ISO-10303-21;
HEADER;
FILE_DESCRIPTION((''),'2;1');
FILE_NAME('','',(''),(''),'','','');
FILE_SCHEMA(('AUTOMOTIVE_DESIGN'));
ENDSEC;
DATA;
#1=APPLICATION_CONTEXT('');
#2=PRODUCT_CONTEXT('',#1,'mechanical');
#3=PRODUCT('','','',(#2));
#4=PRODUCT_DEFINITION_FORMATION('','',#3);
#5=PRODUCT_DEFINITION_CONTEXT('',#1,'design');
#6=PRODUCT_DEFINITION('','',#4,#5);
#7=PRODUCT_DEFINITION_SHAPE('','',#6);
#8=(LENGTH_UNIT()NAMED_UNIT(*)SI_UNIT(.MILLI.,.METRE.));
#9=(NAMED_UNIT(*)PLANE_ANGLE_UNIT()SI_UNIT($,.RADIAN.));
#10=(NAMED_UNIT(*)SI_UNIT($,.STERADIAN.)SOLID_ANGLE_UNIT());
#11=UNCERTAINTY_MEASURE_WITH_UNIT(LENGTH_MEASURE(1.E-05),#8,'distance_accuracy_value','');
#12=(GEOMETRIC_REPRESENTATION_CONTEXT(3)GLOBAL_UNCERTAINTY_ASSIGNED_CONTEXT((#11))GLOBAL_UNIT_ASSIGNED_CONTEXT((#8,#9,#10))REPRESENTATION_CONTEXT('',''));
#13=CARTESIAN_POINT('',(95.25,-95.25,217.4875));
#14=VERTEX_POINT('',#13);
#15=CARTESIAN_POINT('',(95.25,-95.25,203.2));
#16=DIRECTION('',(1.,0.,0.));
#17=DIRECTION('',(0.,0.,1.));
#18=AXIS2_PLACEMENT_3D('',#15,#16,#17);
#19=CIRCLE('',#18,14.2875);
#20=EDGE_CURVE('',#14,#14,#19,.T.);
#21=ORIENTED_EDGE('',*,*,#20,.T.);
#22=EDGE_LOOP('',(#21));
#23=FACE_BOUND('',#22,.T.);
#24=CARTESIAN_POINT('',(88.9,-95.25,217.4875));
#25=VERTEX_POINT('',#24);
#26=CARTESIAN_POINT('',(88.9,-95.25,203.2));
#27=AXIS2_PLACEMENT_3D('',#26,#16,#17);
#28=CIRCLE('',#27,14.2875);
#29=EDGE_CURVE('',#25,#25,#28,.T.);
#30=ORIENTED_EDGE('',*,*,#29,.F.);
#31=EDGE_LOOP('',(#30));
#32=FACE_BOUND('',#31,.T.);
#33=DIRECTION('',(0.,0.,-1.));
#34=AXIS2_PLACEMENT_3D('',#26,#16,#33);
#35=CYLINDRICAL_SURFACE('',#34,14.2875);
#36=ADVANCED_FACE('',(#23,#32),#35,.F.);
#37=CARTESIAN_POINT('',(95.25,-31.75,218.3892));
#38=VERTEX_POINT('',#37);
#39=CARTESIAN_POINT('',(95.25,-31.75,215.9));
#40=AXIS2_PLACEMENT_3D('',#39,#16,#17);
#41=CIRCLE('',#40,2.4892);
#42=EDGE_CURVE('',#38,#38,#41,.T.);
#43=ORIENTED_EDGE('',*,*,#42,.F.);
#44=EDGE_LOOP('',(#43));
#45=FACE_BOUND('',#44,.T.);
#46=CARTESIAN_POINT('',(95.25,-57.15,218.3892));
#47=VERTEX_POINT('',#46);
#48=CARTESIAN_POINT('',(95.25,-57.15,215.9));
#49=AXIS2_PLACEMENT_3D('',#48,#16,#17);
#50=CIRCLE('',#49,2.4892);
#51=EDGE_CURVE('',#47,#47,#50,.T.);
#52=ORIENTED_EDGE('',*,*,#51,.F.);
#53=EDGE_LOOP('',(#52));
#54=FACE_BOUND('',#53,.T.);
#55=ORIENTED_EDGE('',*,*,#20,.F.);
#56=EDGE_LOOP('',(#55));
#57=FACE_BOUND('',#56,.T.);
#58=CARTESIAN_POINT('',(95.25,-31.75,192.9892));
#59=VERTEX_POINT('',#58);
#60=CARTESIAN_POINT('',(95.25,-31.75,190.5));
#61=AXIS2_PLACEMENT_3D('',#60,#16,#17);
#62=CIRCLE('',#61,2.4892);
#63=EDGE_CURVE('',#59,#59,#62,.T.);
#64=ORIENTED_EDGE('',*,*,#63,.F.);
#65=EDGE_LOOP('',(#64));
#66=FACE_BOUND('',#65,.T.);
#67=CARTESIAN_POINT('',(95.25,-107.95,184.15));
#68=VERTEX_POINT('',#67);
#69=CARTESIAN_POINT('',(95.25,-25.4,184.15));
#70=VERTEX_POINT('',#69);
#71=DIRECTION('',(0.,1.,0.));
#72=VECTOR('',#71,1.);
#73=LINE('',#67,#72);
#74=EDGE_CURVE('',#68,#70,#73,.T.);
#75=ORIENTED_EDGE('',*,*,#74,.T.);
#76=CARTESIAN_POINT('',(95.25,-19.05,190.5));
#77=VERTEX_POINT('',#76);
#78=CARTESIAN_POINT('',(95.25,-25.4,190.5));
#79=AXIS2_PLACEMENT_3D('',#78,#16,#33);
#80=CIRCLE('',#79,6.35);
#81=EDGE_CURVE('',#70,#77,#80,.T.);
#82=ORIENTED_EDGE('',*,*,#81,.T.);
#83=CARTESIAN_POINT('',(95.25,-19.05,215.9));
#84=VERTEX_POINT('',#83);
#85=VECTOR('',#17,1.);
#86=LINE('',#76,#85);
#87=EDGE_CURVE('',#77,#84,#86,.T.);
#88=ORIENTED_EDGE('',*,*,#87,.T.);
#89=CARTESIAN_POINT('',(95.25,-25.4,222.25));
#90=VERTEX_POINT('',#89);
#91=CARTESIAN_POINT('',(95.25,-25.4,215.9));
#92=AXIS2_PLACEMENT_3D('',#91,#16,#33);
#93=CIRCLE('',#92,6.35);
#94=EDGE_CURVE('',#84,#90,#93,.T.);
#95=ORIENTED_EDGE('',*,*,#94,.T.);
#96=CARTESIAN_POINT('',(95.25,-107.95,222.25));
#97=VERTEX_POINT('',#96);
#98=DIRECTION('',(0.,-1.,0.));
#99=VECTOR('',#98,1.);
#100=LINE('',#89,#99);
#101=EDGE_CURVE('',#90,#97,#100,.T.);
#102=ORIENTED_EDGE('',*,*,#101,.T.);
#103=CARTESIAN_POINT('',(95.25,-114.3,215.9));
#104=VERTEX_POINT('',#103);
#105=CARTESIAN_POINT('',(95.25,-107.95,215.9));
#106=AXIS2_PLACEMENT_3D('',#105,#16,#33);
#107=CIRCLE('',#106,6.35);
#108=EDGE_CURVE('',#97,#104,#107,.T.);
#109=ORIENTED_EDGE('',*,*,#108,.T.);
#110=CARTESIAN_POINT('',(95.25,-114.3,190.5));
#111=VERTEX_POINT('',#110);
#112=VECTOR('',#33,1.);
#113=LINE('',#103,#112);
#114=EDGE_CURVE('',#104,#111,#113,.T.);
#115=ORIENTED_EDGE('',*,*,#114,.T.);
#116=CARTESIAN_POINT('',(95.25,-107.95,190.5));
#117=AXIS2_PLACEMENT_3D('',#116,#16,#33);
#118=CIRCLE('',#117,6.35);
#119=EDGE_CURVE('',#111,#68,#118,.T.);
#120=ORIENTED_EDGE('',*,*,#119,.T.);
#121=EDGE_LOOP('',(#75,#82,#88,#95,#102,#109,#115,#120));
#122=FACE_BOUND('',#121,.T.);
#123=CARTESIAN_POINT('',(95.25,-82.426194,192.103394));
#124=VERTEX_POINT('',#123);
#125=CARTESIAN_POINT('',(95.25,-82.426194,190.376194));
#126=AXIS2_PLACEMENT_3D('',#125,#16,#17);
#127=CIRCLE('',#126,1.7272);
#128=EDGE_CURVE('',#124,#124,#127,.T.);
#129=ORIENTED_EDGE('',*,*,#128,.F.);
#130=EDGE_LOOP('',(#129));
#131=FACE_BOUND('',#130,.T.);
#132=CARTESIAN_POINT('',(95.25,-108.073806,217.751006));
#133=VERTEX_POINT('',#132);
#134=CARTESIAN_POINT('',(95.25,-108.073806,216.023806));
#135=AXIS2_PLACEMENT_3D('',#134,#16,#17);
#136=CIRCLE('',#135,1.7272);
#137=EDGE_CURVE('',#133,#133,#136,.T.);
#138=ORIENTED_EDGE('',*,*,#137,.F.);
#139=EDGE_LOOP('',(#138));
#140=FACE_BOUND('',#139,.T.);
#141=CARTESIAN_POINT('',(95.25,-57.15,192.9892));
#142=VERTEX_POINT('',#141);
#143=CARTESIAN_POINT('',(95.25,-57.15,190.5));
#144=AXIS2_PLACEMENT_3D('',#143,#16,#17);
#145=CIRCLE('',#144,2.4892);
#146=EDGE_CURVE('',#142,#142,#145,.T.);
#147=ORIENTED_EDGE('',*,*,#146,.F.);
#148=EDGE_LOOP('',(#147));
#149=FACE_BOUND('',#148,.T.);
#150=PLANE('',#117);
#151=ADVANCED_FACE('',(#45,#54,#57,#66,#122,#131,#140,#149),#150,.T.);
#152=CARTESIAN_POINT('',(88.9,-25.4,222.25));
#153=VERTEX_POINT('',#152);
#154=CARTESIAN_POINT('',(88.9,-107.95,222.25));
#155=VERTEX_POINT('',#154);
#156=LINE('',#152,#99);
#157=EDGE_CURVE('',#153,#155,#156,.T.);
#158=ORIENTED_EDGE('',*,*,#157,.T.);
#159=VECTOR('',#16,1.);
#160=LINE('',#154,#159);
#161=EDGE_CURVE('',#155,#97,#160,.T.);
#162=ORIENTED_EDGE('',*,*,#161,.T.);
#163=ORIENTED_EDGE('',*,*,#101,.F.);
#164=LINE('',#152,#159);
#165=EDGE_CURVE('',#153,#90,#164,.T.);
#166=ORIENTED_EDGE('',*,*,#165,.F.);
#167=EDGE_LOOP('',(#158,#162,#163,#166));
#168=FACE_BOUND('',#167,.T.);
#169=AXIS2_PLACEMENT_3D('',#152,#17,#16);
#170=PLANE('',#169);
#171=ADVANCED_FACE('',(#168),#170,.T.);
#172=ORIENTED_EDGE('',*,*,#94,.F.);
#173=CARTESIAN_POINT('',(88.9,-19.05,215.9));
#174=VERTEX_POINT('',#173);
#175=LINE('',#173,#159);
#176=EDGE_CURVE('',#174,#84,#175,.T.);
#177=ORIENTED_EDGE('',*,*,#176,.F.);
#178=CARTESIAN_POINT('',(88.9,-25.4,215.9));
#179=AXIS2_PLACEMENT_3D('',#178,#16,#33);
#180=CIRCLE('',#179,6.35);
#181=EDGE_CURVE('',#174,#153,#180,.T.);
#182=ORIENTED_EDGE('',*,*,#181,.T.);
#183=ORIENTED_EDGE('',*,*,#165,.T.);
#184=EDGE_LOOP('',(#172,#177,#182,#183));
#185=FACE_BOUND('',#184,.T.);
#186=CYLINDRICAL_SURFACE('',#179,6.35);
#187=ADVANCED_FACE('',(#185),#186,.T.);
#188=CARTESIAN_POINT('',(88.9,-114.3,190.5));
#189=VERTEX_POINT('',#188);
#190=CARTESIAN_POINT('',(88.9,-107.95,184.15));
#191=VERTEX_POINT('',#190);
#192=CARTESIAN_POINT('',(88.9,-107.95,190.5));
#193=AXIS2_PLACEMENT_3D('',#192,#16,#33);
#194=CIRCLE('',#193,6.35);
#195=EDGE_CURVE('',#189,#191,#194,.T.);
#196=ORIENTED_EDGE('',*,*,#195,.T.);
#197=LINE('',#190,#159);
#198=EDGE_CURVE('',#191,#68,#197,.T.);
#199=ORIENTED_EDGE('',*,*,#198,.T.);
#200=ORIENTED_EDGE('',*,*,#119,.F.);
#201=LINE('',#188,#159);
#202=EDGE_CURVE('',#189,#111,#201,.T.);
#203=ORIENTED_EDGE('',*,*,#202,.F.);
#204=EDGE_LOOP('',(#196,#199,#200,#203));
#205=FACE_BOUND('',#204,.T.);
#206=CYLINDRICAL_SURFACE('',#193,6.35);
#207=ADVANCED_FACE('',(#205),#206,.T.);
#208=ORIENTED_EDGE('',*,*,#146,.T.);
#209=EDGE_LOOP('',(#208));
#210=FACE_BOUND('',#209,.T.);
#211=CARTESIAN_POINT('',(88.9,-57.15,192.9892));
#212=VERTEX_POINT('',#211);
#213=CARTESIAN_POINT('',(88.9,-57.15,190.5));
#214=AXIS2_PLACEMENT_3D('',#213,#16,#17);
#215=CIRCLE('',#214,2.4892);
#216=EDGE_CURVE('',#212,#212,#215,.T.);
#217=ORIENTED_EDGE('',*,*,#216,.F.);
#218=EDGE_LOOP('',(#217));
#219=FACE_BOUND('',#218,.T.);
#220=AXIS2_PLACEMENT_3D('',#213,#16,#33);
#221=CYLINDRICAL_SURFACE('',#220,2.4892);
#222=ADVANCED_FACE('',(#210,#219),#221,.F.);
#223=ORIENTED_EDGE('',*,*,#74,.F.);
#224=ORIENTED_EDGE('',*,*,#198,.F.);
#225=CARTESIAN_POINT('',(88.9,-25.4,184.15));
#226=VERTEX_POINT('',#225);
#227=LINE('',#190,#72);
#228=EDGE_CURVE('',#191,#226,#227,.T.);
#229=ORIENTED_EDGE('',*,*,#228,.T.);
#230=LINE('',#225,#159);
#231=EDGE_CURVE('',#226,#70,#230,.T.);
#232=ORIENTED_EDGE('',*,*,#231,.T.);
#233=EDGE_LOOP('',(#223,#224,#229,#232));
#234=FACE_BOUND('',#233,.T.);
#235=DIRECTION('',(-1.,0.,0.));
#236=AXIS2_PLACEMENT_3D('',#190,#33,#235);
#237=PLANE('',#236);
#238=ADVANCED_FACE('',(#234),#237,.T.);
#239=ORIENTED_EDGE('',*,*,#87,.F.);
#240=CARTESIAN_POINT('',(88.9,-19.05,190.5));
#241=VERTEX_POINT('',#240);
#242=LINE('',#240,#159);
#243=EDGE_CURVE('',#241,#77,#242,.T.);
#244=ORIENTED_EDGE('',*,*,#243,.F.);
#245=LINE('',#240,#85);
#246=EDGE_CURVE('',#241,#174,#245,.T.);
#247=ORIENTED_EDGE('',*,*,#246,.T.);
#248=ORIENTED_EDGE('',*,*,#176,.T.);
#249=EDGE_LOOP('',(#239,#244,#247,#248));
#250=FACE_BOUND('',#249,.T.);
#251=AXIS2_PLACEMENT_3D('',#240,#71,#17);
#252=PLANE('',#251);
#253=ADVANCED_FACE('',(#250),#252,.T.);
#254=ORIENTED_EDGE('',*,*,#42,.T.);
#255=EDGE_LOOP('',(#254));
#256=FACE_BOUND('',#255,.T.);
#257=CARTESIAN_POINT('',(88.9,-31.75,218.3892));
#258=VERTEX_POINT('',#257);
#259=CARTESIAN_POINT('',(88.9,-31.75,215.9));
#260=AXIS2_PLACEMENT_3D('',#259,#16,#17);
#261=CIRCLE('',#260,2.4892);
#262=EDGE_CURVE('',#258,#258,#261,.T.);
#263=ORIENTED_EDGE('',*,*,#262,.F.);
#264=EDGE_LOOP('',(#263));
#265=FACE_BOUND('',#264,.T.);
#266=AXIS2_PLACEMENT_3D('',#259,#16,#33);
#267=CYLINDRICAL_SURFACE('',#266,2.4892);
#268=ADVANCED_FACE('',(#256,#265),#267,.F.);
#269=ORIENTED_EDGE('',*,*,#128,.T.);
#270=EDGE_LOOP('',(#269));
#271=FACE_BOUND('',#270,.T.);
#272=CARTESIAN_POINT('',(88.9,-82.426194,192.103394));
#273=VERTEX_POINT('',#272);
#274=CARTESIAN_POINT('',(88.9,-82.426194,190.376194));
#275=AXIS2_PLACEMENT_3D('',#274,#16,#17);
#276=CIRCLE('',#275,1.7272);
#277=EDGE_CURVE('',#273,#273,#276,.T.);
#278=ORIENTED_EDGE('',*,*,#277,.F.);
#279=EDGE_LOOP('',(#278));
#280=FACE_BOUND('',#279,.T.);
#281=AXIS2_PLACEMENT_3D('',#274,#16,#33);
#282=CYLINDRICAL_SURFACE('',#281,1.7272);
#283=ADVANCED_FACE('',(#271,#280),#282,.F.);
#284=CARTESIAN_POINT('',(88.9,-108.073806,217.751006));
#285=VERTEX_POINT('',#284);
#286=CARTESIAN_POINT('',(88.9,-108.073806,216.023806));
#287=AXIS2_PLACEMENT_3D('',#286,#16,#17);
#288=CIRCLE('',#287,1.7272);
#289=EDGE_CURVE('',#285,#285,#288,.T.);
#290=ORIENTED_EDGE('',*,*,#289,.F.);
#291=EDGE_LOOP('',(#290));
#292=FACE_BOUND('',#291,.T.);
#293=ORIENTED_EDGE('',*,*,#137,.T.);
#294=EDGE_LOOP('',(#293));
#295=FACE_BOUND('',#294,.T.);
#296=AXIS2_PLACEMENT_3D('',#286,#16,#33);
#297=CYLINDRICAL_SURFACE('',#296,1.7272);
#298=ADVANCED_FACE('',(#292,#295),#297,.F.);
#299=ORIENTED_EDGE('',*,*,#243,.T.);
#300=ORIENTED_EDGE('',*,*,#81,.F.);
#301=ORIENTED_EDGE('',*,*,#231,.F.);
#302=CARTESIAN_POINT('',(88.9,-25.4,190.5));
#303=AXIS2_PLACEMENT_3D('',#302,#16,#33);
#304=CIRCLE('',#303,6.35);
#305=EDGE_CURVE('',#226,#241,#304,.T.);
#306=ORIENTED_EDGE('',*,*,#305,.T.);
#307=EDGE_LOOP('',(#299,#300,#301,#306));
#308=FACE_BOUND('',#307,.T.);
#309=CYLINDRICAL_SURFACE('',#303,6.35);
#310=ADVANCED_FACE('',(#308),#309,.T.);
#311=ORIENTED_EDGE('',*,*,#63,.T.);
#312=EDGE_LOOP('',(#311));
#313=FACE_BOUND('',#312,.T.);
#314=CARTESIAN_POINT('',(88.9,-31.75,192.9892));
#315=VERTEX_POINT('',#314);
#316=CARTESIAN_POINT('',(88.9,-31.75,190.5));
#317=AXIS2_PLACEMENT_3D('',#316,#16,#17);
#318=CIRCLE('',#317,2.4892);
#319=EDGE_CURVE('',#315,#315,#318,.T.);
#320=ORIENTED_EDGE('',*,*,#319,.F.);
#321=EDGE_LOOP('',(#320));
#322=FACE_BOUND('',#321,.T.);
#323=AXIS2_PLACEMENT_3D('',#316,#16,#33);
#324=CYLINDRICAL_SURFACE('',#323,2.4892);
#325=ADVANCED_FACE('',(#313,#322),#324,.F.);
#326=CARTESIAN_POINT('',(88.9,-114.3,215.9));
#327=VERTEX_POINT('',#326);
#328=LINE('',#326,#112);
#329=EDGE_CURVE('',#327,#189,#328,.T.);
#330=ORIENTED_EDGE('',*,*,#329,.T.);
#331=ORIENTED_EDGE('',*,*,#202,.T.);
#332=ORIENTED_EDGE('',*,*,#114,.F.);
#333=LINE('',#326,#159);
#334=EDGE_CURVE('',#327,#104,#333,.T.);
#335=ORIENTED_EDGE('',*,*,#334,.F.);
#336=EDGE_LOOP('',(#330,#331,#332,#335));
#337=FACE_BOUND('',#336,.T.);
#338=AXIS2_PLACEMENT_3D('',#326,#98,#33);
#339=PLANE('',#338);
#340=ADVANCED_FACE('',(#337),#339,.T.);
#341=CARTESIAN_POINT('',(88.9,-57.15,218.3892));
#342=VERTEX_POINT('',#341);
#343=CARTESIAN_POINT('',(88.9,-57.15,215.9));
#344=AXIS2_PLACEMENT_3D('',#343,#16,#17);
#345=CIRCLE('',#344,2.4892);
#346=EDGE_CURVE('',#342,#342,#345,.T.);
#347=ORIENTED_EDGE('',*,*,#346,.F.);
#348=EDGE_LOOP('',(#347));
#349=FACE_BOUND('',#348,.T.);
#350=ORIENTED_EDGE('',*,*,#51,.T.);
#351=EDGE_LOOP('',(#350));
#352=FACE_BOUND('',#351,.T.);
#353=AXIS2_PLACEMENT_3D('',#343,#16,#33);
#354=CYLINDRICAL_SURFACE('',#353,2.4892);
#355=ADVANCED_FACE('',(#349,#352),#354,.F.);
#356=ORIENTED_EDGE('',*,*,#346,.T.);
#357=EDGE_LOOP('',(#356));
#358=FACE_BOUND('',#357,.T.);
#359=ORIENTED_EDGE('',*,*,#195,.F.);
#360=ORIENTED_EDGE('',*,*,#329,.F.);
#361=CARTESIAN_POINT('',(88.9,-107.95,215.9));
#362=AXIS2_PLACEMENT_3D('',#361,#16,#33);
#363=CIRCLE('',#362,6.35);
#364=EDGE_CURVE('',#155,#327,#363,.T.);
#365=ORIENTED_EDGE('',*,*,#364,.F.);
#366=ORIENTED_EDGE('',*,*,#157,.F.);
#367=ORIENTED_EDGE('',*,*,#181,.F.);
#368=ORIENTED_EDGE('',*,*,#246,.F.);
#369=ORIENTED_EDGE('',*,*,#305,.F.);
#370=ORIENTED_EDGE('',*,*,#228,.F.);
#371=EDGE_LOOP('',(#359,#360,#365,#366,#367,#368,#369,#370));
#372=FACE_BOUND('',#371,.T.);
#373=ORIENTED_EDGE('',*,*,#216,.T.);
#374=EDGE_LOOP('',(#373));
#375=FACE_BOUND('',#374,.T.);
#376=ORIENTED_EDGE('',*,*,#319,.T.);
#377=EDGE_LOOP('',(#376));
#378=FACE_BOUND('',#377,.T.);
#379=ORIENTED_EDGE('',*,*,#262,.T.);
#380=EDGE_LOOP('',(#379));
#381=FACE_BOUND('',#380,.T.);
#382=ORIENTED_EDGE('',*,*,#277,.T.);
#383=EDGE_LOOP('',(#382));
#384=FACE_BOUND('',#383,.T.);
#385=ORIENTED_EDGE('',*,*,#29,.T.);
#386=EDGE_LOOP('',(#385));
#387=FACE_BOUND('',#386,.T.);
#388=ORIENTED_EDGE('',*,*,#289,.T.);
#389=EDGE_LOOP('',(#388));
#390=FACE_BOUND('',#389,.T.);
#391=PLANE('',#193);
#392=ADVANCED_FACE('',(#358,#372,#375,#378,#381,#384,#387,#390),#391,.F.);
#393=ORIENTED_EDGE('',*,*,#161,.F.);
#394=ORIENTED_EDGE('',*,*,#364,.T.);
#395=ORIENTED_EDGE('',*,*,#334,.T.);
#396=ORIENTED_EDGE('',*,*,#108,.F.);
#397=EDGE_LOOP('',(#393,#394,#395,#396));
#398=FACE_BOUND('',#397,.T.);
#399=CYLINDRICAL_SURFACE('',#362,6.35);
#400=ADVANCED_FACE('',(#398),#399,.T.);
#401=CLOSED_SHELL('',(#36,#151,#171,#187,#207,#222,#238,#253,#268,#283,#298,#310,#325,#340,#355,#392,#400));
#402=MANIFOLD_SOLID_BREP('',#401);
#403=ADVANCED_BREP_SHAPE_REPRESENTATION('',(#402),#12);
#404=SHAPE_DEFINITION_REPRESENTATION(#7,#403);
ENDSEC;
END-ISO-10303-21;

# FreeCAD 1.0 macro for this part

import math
import FreeCAD as App
import Part
import Sketcher
Q = App.Units.Quantity

doc = App.newDocument("Part")
body = doc.addObject("PartDesign::Body", "Body")

# Sketch on YZ plane
sketch1 = doc.addObject("Sketcher::SketchObject", "Sketch")
body.addObject(sketch1)
sketch1.AttachmentSupport = (doc.YZ_Plane, [""])
sketch1.MapMode = "FlatFace"
sketch1.AttachmentOffset = App.Placement(App.Vector(0, 0, 3.75 * 25.4), App.Rotation())
sketch1.addGeometry([
    Part.LineSegment(App.Vector(-108, 184.2, 0), App.Vector(-25.4, 184.2, 0)),  # 0
    Part.ArcOfCircle(Part.Circle(App.Vector(-25.4, 190.5, 0), App.Vector(0, 0, 1), 6.3), math.radians(-90), math.radians(0)),  # 1
    Part.LineSegment(App.Vector(-19.1, 190.5, 0), App.Vector(-19.1, 215.9, 0)),  # 2
    Part.ArcOfCircle(Part.Circle(App.Vector(-25.4, 215.9, 0), App.Vector(0, 0, 1), 6.3), math.radians(0), math.radians(90)),  # 3
    Part.LineSegment(App.Vector(-25.4, 222.2, 0), App.Vector(-108, 222.2, 0)),  # 4
    Part.ArcOfCircle(Part.Circle(App.Vector(-108, 215.9, 0), App.Vector(0, 0, 1), 6.3), math.radians(90), math.radians(180)),  # 5
    Part.LineSegment(App.Vector(-114.3, 215.9, 0), App.Vector(-114.3, 190.5, 0)),  # 6
    Part.ArcOfCircle(Part.Circle(App.Vector(-108, 190.5, 0), App.Vector(0, 0, 1), 6.3), math.radians(180), math.radians(270)),  # 7
    Part.Circle(App.Vector(-108.1, 216, 0), App.Vector(0, 0, 1), 1.7),  # 8
    Part.Circle(App.Vector(-95.2, 203.2, 0), App.Vector(0, 0, 1), 14.3),  # 9
    Part.Circle(App.Vector(-82.4, 190.4, 0), App.Vector(0, 0, 1), 1.7),  # 10
    Part.Circle(App.Vector(-57.1, 215.9, 0), App.Vector(0, 0, 1), 2.5),  # 11
    Part.Circle(App.Vector(-31.8, 215.9, 0), App.Vector(0, 0, 1), 2.5),  # 12
    Part.Circle(App.Vector(-57.1, 190.5, 0), App.Vector(0, 0, 1), 2.5),  # 13
    Part.Circle(App.Vector(-31.8, 190.5, 0), App.Vector(0, 0, 1), 2.5),  # 14
], False)
sketch1.addConstraint([
    Sketcher.Constraint("Tangent", 0, 2, 1, 1),
    Sketcher.Constraint("Tangent", 1, 2, 2, 1),
    Sketcher.Constraint("Tangent", 2, 2, 3, 1),
    Sketcher.Constraint("Tangent", 3, 2, 4, 1),
    Sketcher.Constraint("Tangent", 4, 2, 5, 1),
    Sketcher.Constraint("Tangent", 5, 2, 6, 1),
    Sketcher.Constraint("Tangent", 6, 2, 7, 1),
    Sketcher.Constraint("Tangent", 7, 2, 0, 1),
    Sketcher.Constraint("Horizontal", 0),
    Sketcher.Constraint("Vertical", 2),
    Sketcher.Constraint("Horizontal", 4),
    Sketcher.Constraint("Vertical", 6),
    Sketcher.Constraint("Equal", 1, 3),
    Sketcher.Constraint("Equal", 3, 5),
    Sketcher.Constraint("Equal", 5, 7),
    Sketcher.Constraint("Equal", 8, 10),
    Sketcher.Constraint("Equal", 11, 12),
    Sketcher.Constraint("Equal", 12, 13),
    Sketcher.Constraint("Equal", 13, 14),
    Sketcher.Constraint("Horizontal", 5, 3, 11, 3),
    Sketcher.Constraint("Horizontal", 11, 3, 12, 3),
    Sketcher.Constraint("Horizontal", 7, 3, 13, 3),
    Sketcher.Constraint("Horizontal", 13, 3, 14, 3),
    Sketcher.Constraint("Vertical", 11, 3, 13, 3),
    Sketcher.Constraint("Vertical", 12, 3, 14, 3),
    Sketcher.Constraint("DistanceY", 2, 1, 2, 2, Q("1 in")),
    Sketcher.Constraint("Radius", 1, Q("0.25 in")),
    Sketcher.Constraint("Diameter", 8, Q("0.136 in")),
    Sketcher.Constraint("Diameter", 9, Q("1.125 in")),
    Sketcher.Constraint("Diameter", 11, Q("0.196 in")),
    Sketcher.Constraint("DistanceX", 1, 3, -1, 1, Q("1 in")),
    Sketcher.Constraint("DistanceY", -1, 1, 9, 3, Q("8 in")),
    Sketcher.Constraint("DistanceX", 5, 3, 11, 3, Q("2 in")),
    Sketcher.Constraint("DistanceX", 11, 3, 12, 3, Q("1 in")),
    Sketcher.Constraint("DistanceX", 0, 1, 0, 2, Q("3.25 in")),
    Sketcher.Constraint("DistanceY", -1, 1, 1, 3, Q("7.5 in")),
    Sketcher.Constraint("DistanceX", 7, 3, 9, 3, Q("0.5 in")),
    Sketcher.Constraint("DistanceX", 8, 3, 10, 3, Q("25.647611 mm")),
    Sketcher.Constraint("DistanceY", 10, 3, 8, 3, Q("25.647611 mm")),
    Sketcher.Constraint("DistanceX", 8, 3, -1, 1, Q("108.073806 mm")),
    Sketcher.Constraint("DistanceY", -1, 1, 8, 3, Q("216.023806 mm")),
])
pad1 = doc.addObject("PartDesign::Pad", "Pad")
body.addObject(pad1)
pad1.Profile = sketch1
pad1.Length = Q("0.25 in")
pad1.Reversed = True

doc.recompute()
